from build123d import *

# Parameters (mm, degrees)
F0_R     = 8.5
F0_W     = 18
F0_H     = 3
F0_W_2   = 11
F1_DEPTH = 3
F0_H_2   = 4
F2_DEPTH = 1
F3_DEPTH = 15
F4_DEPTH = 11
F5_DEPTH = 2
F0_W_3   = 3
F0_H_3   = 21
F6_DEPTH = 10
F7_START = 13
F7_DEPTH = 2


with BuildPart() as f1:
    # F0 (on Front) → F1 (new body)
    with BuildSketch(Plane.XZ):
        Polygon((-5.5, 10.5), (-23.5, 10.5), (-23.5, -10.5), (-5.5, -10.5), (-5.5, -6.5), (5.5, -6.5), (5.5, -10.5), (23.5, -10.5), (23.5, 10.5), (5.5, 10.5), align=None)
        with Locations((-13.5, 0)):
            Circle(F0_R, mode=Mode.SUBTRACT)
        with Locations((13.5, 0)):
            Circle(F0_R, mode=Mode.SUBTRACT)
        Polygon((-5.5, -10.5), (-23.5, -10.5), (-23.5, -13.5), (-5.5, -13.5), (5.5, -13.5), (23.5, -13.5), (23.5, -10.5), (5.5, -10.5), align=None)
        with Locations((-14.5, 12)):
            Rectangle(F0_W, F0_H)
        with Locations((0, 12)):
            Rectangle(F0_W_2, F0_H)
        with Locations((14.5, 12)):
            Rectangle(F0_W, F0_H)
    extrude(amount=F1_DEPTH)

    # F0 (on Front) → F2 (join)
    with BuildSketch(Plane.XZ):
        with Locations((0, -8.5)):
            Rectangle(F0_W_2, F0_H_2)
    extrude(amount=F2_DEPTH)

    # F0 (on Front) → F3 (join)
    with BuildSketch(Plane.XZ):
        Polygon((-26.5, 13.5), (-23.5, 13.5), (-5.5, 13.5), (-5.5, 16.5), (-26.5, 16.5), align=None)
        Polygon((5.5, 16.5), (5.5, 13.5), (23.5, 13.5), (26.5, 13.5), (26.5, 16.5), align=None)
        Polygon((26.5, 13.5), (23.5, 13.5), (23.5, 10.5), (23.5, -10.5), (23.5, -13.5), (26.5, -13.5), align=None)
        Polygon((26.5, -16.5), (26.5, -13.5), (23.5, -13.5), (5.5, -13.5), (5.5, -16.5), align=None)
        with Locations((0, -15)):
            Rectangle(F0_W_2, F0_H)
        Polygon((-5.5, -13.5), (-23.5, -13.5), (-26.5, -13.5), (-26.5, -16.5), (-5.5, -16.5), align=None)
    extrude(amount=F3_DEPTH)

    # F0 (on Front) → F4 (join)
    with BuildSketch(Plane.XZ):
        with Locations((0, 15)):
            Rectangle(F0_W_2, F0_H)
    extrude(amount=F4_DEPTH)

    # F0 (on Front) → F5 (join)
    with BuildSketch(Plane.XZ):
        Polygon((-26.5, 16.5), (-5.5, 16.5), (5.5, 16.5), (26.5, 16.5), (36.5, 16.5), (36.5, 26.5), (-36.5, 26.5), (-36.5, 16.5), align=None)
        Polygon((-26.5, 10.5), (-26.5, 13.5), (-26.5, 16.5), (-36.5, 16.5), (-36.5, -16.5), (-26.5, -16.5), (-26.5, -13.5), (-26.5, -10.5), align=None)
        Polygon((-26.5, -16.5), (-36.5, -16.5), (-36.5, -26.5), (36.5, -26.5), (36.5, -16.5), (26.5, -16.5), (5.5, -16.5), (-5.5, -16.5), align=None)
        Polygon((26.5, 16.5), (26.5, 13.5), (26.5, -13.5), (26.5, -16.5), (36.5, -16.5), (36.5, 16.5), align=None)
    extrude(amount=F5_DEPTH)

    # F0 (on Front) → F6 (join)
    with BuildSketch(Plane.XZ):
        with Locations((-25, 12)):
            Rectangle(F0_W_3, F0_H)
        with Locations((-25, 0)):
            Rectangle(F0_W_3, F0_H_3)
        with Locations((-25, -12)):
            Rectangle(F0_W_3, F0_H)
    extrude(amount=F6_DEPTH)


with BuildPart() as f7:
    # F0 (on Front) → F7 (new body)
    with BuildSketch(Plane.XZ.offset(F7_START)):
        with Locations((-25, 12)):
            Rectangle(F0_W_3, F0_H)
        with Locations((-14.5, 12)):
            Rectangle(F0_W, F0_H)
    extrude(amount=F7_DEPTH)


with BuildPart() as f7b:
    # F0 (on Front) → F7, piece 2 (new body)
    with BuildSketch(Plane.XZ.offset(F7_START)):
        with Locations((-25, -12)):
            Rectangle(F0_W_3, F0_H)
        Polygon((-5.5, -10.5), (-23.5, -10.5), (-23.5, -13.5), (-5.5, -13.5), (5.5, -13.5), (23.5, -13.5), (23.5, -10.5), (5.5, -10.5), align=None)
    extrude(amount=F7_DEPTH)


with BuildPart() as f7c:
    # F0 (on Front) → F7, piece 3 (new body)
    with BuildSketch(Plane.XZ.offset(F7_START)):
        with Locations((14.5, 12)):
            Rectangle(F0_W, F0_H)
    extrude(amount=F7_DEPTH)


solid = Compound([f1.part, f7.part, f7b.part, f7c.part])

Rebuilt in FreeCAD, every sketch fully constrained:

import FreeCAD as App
import Part
import Sketcher
from FreeCAD import Vector

doc = App.newDocument("Part")
body = doc.addObject("PartDesign::Body", "Body")

# Sketch on XZ plane
sketch1 = doc.addObject("Sketcher::SketchObject", "Sketch")
body.addObject(sketch1)
sketch1.AttachmentSupport = (doc.XZ_Plane, [""])
sketch1.MapMode = "FlatFace"
sketch1.addGeometry([
    Part.LineSegment(Vector(-23.5, -13.5, 0), Vector(23.5, -13.5, 0)),  # 0
    Part.LineSegment(Vector(23.5, -13.5, 0), Vector(23.5, 13.5, 0)),  # 1
    Part.LineSegment(Vector(23.5, 13.5, 0), Vector(-23.5, 13.5, 0)),  # 2
    Part.LineSegment(Vector(-23.5, 13.5, 0), Vector(-23.5, -13.5, 0)),  # 3
    Part.LineSegment(Vector(5.5, -10.5, 0), Vector(-5.5, -10.5, 0)),  # 4
    Part.LineSegment(Vector(-5.5, -10.5, 0), Vector(-5.5, -6.5, 0)),  # 5
    Part.LineSegment(Vector(-5.5, -6.5, 0), Vector(5.5, -6.5, 0)),  # 6
    Part.LineSegment(Vector(5.5, -6.5, 0), Vector(5.5, -10.5, 0)),  # 7
    Part.Circle(Vector(-13.5, 0, 0), Vector(0, 0, 1), 8.5),  # 8
    Part.Circle(Vector(13.5, 0, 0), Vector(0, 0, 1), 8.5),  # 9
], False)
sketch1.addConstraint([
    Sketcher.Constraint("Coincident", 0, 2, 1, 1),
    Sketcher.Constraint("Coincident", 1, 2, 2, 1),
    Sketcher.Constraint("Coincident", 2, 2, 3, 1),
    Sketcher.Constraint("Coincident", 3, 2, 0, 1),
    Sketcher.Constraint("Coincident", 4, 2, 5, 1),
    Sketcher.Constraint("Coincident", 5, 2, 6, 1),
    Sketcher.Constraint("Coincident", 6, 2, 7, 1),
    Sketcher.Constraint("Coincident", 7, 2, 4, 1),
    Sketcher.Constraint("Horizontal", 0),
    Sketcher.Constraint("Vertical", 1),
    Sketcher.Constraint("Horizontal", 2),
    Sketcher.Constraint("Vertical", 3),
    Sketcher.Constraint("Horizontal", 4),
    Sketcher.Constraint("Vertical", 5),
    Sketcher.Constraint("Horizontal", 6),
    Sketcher.Constraint("Vertical", 7),
    Sketcher.Constraint("Equal", 8, 9),
    Sketcher.Constraint("Symmetric", 8, 3, 9, 3, -1, 1),
    Sketcher.Constraint("Symmetric", 0, 2, 2, 2, -1, 1),
    Sketcher.Constraint("PointOnObject", 8, 3, -1),
    Sketcher.Constraint("Diameter", 8, 17.0),
    Sketcher.Constraint("DistanceX", 0, 1, 0, 2, 47.0),
    Sketcher.Constraint("DistanceX", 4, 2, 4, 1, 11.0),
    Sketcher.Constraint("DistanceY", 1, 1, 1, 2, 27.0),
    Sketcher.Constraint("DistanceY", 5, 1, 5, 2, 4.0),
    Sketcher.Constraint("DistanceX", 8, 3, 9, 3, 27.0),
    Sketcher.Constraint("DistanceX", 8, 3, 4, 2, 8.0),
    Sketcher.Constraint("DistanceY", 3, 2, 4, 2, 3.0),
])
pad1 = doc.addObject("PartDesign::Pad", "Pad")
body.addObject(pad1)
pad1.Profile = sketch1
pad1.Length = 3

# Sketch on XZ plane
sketch2 = doc.addObject("Sketcher::SketchObject", "Sketch001")
body.addObject(sketch2)
sketch2.AttachmentSupport = (doc.XZ_Plane, [""])
sketch2.MapMode = "FlatFace"
sketch2.addGeometry([
    Part.LineSegment(Vector(-5.5, -6.5, 0), Vector(-5.5, -10.5, 0)),
    Part.LineSegment(Vector(-5.5, -10.5, 0), Vector(5.5, -10.5, 0)),
    Part.LineSegment(Vector(5.5, -10.5, 0), Vector(5.5, -6.5, 0)),
    Part.LineSegment(Vector(5.5, -6.5, 0), Vector(-5.5, -6.5, 0)),
], False)
sketch2.addConstraint([
    Sketcher.Constraint("Coincident", 0, 2, 1, 1),
    Sketcher.Constraint("Coincident", 1, 2, 2, 1),
    Sketcher.Constraint("Coincident", 2, 2, 3, 1),
    Sketcher.Constraint("Coincident", 3, 2, 0, 1),
    Sketcher.Constraint("Vertical", 0),
    Sketcher.Constraint("Horizontal", 1),
    Sketcher.Constraint("Vertical", 2),
    Sketcher.Constraint("Horizontal", 3),
    Sketcher.Constraint("DistanceX", 1, 1, 1, 2, 11.0),
    Sketcher.Constraint("DistanceY", 0, 2, 0, 1, 4.0),
    Sketcher.Constraint("DistanceX", 0, 2, -1, 1, 5.5),
    Sketcher.Constraint("DistanceY", 0, 2, -1, 1, 10.5),
])
pad2 = doc.addObject("PartDesign::Pad", "Pad001")
body.addObject(pad2)
pad2.Profile = sketch2
pad2.Length = 1

# Sketch on XZ plane
sketch3 = doc.addObject("Sketcher::SketchObject", "Sketch002")
body.addObject(sketch3)
sketch3.AttachmentSupport = (doc.XZ_Plane, [""])
sketch3.MapMode = "FlatFace"
sketch3.addGeometry([
    Part.LineSegment(Vector(-26.5, 13.5, 0), Vector(-5.5, 13.5, 0)),  # 0
    Part.LineSegment(Vector(-5.5, 13.5, 0), Vector(-5.5, 16.5, 0)),  # 1
    Part.LineSegment(Vector(-5.5, 16.5, 0), Vector(-26.5, 16.5, 0)),  # 2
    Part.LineSegment(Vector(-26.5, 16.5, 0), Vector(-26.5, 13.5, 0)),  # 3
    Part.LineSegment(Vector(26.5, 16.5, 0), Vector(5.5, 16.5, 0)),  # 4
    Part.LineSegment(Vector(5.5, 16.5, 0), Vector(5.5, 13.5, 0)),  # 5
    Part.LineSegment(Vector(5.5, 13.5, 0), Vector(23.5, 13.5, 0)),  # 6
    Part.LineSegment(Vector(23.5, 13.5, 0), Vector(23.5, -13.5, 0)),  # 7
    Part.LineSegment(Vector(23.5, -13.5, 0), Vector(-26.5, -13.5, 0)),  # 8
    Part.LineSegment(Vector(-26.5, -13.5, 0), Vector(-26.5, -16.5, 0)),  # 9
    Part.LineSegment(Vector(-26.5, -16.5, 0), Vector(26.5, -16.5, 0)),  # 10
    Part.LineSegment(Vector(26.5, -16.5, 0), Vector(26.5, 16.5, 0)),  # 11
], False)
sketch3.addConstraint([
    Sketcher.Constraint("Coincident", 0, 2, 1, 1),
    Sketcher.Constraint("Coincident", 1, 2, 2, 1),
    Sketcher.Constraint("Coincident", 2, 2, 3, 1),
    Sketcher.Constraint("Coincident", 3, 2, 0, 1),
    Sketcher.Constraint("Coincident", 4, 2, 5, 1),
    Sketcher.Constraint("Coincident", 5, 2, 6, 1),
    Sketcher.Constraint("Coincident", 6, 2, 7, 1),
    Sketcher.Constraint("Coincident", 7, 2, 8, 1),
    Sketcher.Constraint("Coincident", 8, 2, 9, 1),
    Sketcher.Constraint("Coincident", 9, 2, 10, 1),
    Sketcher.Constraint("Coincident", 10, 2, 11, 1),
    Sketcher.Constraint("Coincident", 11, 2, 4, 1),
    Sketcher.Constraint("Horizontal", 0),
    Sketcher.Constraint("Vertical", 1),
    Sketcher.Constraint("Horizontal", 2),
    Sketcher.Constraint("Vertical", 3),
    Sketcher.Constraint("Horizontal", 4),
    Sketcher.Constraint("Vertical", 5),
    Sketcher.Constraint("Horizontal", 6),
    Sketcher.Constraint("Vertical", 7),
    Sketcher.Constraint("Horizontal", 8),
    Sketcher.Constraint("Vertical", 9),
    Sketcher.Constraint("Horizontal", 10),
    Sketcher.Constraint("Vertical", 11),
    Sketcher.Constraint("Symmetric", 2, 2, 10, 2, -1, 1),
    Sketcher.Constraint("Symmetric", 9, 2, 11, 2, -1, 1),
    Sketcher.Constraint("Symmetric", 0, 2, 5, 2, -2),
    Sketcher.Constraint("Equal", 5, 9),
    Sketcher.Constraint("DistanceX", 0, 1, 0, 2, 21.0),
    Sketcher.Constraint("DistanceX", 6, 1, 6, 2, 18.0),
    Sketcher.Constraint("DistanceX", 8, 2, 8, 1, 50.0),
    Sketcher.Constraint("DistanceY", 1, 1, 1, 2, 3.0),
    Sketcher.Constraint("DistanceY", 7, 2, 7, 1, 27.0),
])
pad3 = doc.addObject("PartDesign::Pad", "Pad002")
body.addObject(pad3)
pad3.Profile = sketch3
pad3.Length = 15

# Sketch on XZ plane
sketch4 = doc.addObject("Sketcher::SketchObject", "Sketch003")
body.addObject(sketch4)
sketch4.AttachmentSupport = (doc.XZ_Plane, [""])
sketch4.MapMode = "FlatFace"
sketch4.addGeometry([
    Part.LineSegment(Vector(-5.5, 16.5, 0), Vector(-5.5, 13.5, 0)),
    Part.LineSegment(Vector(-5.5, 13.5, 0), Vector(5.5, 13.5, 0)),
    Part.LineSegment(Vector(5.5, 13.5, 0), Vector(5.5, 16.5, 0)),
    Part.LineSegment(Vector(5.5, 16.5, 0), Vector(-5.5, 16.5, 0)),
], False)
sketch4.addConstraint([
    Sketcher.Constraint("Coincident", 0, 2, 1, 1),
    Sketcher.Constraint("Coincident", 1, 2, 2, 1),
    Sketcher.Constraint("Coincident", 2, 2, 3, 1),
    Sketcher.Constraint("Coincident", 3, 2, 0, 1),
    Sketcher.Constraint("Vertical", 0),
    Sketcher.Constraint("Horizontal", 1),
    Sketcher.Constraint("Vertical", 2),
    Sketcher.Constraint("Horizontal", 3),
    Sketcher.Constraint("DistanceX", 1, 1, 1, 2, 11.0),
    Sketcher.Constraint("DistanceY", 0, 2, 0, 1, 3.0),
    Sketcher.Constraint("DistanceX", 0, 2, -1, 1, 5.5),
    Sketcher.Constraint("DistanceY", -1, 1, 0, 2, 13.5),
])
pad4 = doc.addObject("PartDesign::Pad", "Pad003")
body.addObject(pad4)
pad4.Profile = sketch4
pad4.Length = 11

# Sketch on XZ plane
sketch5 = doc.addObject("Sketcher::SketchObject", "Sketch004")
body.addObject(sketch5)
sketch5.AttachmentSupport = (doc.XZ_Plane, [""])
sketch5.MapMode = "FlatFace"
sketch5.addGeometry([
    Part.LineSegment(Vector(36, 26, 0), Vector(-36, 26, 0)),  # 0
    Part.LineSegment(Vector(-36, 26, 0), Vector(-36, -26, 0)),  # 1
    Part.LineSegment(Vector(-36, -26, 0), Vector(36, -26, 0)),  # 2
    Part.LineSegment(Vector(36, -26, 0), Vector(36, 26, 0)),  # 3
    Part.LineSegment(Vector(26, -16, 0), Vector(-26, -16, 0)),  # 4
    Part.LineSegment(Vector(-26, -16, 0), Vector(-26, 16, 0)),  # 5
    Part.LineSegment(Vector(-26, 16, 0), Vector(26, 16, 0)),  # 6
    Part.LineSegment(Vector(26, 16, 0), Vector(26, -16, 0)),  # 7
], False)
sketch5.addConstraint([
    Sketcher.Constraint("Coincident", 0, 2, 1, 1),
    Sketcher.Constraint("Coincident", 1, 2, 2, 1),
    Sketcher.Constraint("Coincident", 2, 2, 3, 1),
    Sketcher.Constraint("Coincident", 3, 2, 0, 1),
    Sketcher.Constraint("Coincident", 4, 2, 5, 1),
    Sketcher.Constraint("Coincident", 5, 2, 6, 1),
    Sketcher.Constraint("Coincident", 6, 2, 7, 1),
    Sketcher.Constraint("Coincident", 7, 2, 4, 1),
    Sketcher.Constraint("Horizontal", 0),
    Sketcher.Constraint("Vertical", 1),
    Sketcher.Constraint("Horizontal", 2),
    Sketcher.Constraint("Vertical", 3),
    Sketcher.Constraint("Horizontal", 4),
    Sketcher.Constraint("Vertical", 5),
    Sketcher.Constraint("Horizontal", 6),
    Sketcher.Constraint("Vertical", 7),
    Sketcher.Constraint("Symmetric", 0, 2, 2, 2, -1, 1),
    Sketcher.Constraint("Symmetric", 4, 2, 6, 2, -1, 1),
    Sketcher.Constraint("Equal", 6, 1),
    Sketcher.Constraint("DistanceX", 0, 2, 0, 1, 73.0),
    Sketcher.Constraint("DistanceX", 4, 2, 4, 1, 53.0),
    Sketcher.Constraint("DistanceY", 5, 1, 5, 2, 33.0),
])
pad5 = doc.addObject("PartDesign::Pad", "Pad004")
body.addObject(pad5)
pad5.Profile = sketch5
pad5.Length = 2

# Sketch on XZ plane
sketch6 = doc.addObject("Sketcher::SketchObject", "Sketch005")
body.addObject(sketch6)
sketch6.AttachmentSupport = (doc.XZ_Plane, [""])
sketch6.MapMode = "FlatFace"
sketch6.addGeometry([
    Part.LineSegment(Vector(-26.5, 13.5, 0), Vector(-26.5, -13.5, 0)),
    Part.LineSegment(Vector(-26.5, -13.5, 0), Vector(-23.5, -13.5, 0)),
    Part.LineSegment(Vector(-23.5, -13.5, 0), Vector(-23.5, 13.5, 0)),
    Part.LineSegment(Vector(-23.5, 13.5, 0), Vector(-26.5, 13.5, 0)),
], False)
sketch6.addConstraint([
    Sketcher.Constraint("Coincident", 0, 2, 1, 1),
    Sketcher.Constraint("Coincident", 1, 2, 2, 1),
    Sketcher.Constraint("Coincident", 2, 2, 3, 1),
    Sketcher.Constraint("Coincident", 3, 2, 0, 1),
    Sketcher.Constraint("Vertical", 0),
    Sketcher.Constraint("Horizontal", 1),
    Sketcher.Constraint("Vertical", 2),
    Sketcher.Constraint("Horizontal", 3),
    Sketcher.Constraint("DistanceX", 1, 1, 1, 2, 3.0),
    Sketcher.Constraint("DistanceY", 0, 2, 0, 1, 27.0),
    Sketcher.Constraint("DistanceX", 0, 2, -1, 1, 26.5),
    Sketcher.Constraint("DistanceY", 0, 2, -1, 1, 13.5),
])
pad6 = doc.addObject("PartDesign::Pad", "Pad005")
body.addObject(pad6)
pad6.Profile = sketch6
pad6.Length = 10
body2 = doc.addObject("PartDesign::Body", "Body001")

# Sketch on XZ plane
sketch7 = doc.addObject("Sketcher::SketchObject", "Sketch006")
body2.addObject(sketch7)
sketch7.AttachmentSupport = (doc.getObject("XZ_Plane001"), [""])
sketch7.MapMode = "FlatFace"
sketch7.AttachmentOffset = App.Placement(Vector(0, 0, 13), App.Rotation())
sketch7.addGeometry([
    Part.LineSegment(Vector(-26.5, 13.5, 0), Vector(-26.5, 10.5, 0)),
    Part.LineSegment(Vector(-26.5, 10.5, 0), Vector(-5.5, 10.5, 0)),
    Part.LineSegment(Vector(-5.5, 10.5, 0), Vector(-5.5, 13.5, 0)),
    Part.LineSegment(Vector(-5.5, 13.5, 0), Vector(-26.5, 13.5, 0)),
], False)
sketch7.addConstraint([
    Sketcher.Constraint("Coincident", 0, 2, 1, 1),
    Sketcher.Constraint("Coincident", 1, 2, 2, 1),
    Sketcher.Constraint("Coincident", 2, 2, 3, 1),
    Sketcher.Constraint("Coincident", 3, 2, 0, 1),
    Sketcher.Constraint("Vertical", 0),
    Sketcher.Constraint("Horizontal", 1),
    Sketcher.Constraint("Vertical", 2),
    Sketcher.Constraint("Horizontal", 3),
    Sketcher.Constraint("DistanceX", 1, 1, 1, 2, 21.0),
    Sketcher.Constraint("DistanceY", 0, 2, 0, 1, 3.0),
    Sketcher.Constraint("DistanceX", 0, 2, -1, 1, 26.5),
    Sketcher.Constraint("DistanceY", -1, 1, 0, 2, 10.5),
])
pad7 = doc.addObject("PartDesign::Pad", "Pad006")
body2.addObject(pad7)
pad7.Profile = sketch7
pad7.Length = 2
body3 = doc.addObject("PartDesign::Body", "Body002")

# Sketch on XZ plane
sketch8 = doc.addObject("Sketcher::SketchObject", "Sketch007")
body3.addObject(sketch8)
sketch8.AttachmentSupport = (doc.getObject("XZ_Plane002"), [""])
sketch8.MapMode = "FlatFace"
sketch8.AttachmentOffset = App.Placement(Vector(0, 0, 13), App.Rotation())
sketch8.addGeometry([
    Part.LineSegment(Vector(-26.5, -10.5, 0), Vector(-26.5, -13.5, 0)),
    Part.LineSegment(Vector(-26.5, -13.5, 0), Vector(23.5, -13.5, 0)),
    Part.LineSegment(Vector(23.5, -13.5, 0), Vector(23.5, -10.5, 0)),
    Part.LineSegment(Vector(23.5, -10.5, 0), Vector(-26.5, -10.5, 0)),
], False)
sketch8.addConstraint([
    Sketcher.Constraint("Coincident", 0, 2, 1, 1),
    Sketcher.Constraint("Coincident", 1, 2, 2, 1),
    Sketcher.Constraint("Coincident", 2, 2, 3, 1),
    Sketcher.Constraint("Coincident", 3, 2, 0, 1),
    Sketcher.Constraint("Vertical", 0),
    Sketcher.Constraint("Horizontal", 1),
    Sketcher.Constraint("Vertical", 2),
    Sketcher.Constraint("Horizontal", 3),
    Sketcher.Constraint("DistanceX", 1, 1, 1, 2, 50.0),
    Sketcher.Constraint("DistanceY", 0, 2, 0, 1, 3.0),
    Sketcher.Constraint("DistanceX", 0, 2, -1, 1, 26.5),
    Sketcher.Constraint("DistanceY", 0, 2, -1, 1, 13.5),
])
pad8 = doc.addObject("PartDesign::Pad", "Pad007")
body3.addObject(pad8)
pad8.Profile = sketch8
pad8.Length = 2
body4 = doc.addObject("PartDesign::Body", "Body003")

# Sketch on XZ plane
sketch9 = doc.addObject("Sketcher::SketchObject", "Sketch008")
body4.addObject(sketch9)
sketch9.AttachmentSupport = (doc.getObject("XZ_Plane003"), [""])
sketch9.MapMode = "FlatFace"
sketch9.AttachmentOffset = App.Placement(Vector(0, 0, 13), App.Rotation())
sketch9.addGeometry([
    Part.LineSegment(Vector(5.5, 13.5, 0), Vector(5.5, 10.5, 0)),
    Part.LineSegment(Vector(5.5, 10.5, 0), Vector(23.5, 10.5, 0)),
    Part.LineSegment(Vector(23.5, 10.5, 0), Vector(23.5, 13.5, 0)),
    Part.LineSegment(Vector(23.5, 13.5, 0), Vector(5.5, 13.5, 0)),
], False)
sketch9.addConstraint([
    Sketcher.Constraint("Coincident", 0, 2, 1, 1),
    Sketcher.Constraint("Coincident", 1, 2, 2, 1),
    Sketcher.Constraint("Coincident", 2, 2, 3, 1),
    Sketcher.Constraint("Coincident", 3, 2, 0, 1),
    Sketcher.Constraint("Vertical", 0),
    Sketcher.Constraint("Horizontal", 1),
    Sketcher.Constraint("Vertical", 2),
    Sketcher.Constraint("Horizontal", 3),
    Sketcher.Constraint("DistanceX", 1, 1, 1, 2, 18.0),
    Sketcher.Constraint("DistanceY", 0, 2, 0, 1, 3.0),
    Sketcher.Constraint("DistanceX", -1, 1, 0, 2, 5.5),
    Sketcher.Constraint("DistanceY", -1, 1, 0, 2, 10.5),
])
pad9 = doc.addObject("PartDesign::Pad", "Pad008")
body4.addObject(pad9)
pad9.Profile = sketch9
pad9.Length = 2

doc.recompute()
